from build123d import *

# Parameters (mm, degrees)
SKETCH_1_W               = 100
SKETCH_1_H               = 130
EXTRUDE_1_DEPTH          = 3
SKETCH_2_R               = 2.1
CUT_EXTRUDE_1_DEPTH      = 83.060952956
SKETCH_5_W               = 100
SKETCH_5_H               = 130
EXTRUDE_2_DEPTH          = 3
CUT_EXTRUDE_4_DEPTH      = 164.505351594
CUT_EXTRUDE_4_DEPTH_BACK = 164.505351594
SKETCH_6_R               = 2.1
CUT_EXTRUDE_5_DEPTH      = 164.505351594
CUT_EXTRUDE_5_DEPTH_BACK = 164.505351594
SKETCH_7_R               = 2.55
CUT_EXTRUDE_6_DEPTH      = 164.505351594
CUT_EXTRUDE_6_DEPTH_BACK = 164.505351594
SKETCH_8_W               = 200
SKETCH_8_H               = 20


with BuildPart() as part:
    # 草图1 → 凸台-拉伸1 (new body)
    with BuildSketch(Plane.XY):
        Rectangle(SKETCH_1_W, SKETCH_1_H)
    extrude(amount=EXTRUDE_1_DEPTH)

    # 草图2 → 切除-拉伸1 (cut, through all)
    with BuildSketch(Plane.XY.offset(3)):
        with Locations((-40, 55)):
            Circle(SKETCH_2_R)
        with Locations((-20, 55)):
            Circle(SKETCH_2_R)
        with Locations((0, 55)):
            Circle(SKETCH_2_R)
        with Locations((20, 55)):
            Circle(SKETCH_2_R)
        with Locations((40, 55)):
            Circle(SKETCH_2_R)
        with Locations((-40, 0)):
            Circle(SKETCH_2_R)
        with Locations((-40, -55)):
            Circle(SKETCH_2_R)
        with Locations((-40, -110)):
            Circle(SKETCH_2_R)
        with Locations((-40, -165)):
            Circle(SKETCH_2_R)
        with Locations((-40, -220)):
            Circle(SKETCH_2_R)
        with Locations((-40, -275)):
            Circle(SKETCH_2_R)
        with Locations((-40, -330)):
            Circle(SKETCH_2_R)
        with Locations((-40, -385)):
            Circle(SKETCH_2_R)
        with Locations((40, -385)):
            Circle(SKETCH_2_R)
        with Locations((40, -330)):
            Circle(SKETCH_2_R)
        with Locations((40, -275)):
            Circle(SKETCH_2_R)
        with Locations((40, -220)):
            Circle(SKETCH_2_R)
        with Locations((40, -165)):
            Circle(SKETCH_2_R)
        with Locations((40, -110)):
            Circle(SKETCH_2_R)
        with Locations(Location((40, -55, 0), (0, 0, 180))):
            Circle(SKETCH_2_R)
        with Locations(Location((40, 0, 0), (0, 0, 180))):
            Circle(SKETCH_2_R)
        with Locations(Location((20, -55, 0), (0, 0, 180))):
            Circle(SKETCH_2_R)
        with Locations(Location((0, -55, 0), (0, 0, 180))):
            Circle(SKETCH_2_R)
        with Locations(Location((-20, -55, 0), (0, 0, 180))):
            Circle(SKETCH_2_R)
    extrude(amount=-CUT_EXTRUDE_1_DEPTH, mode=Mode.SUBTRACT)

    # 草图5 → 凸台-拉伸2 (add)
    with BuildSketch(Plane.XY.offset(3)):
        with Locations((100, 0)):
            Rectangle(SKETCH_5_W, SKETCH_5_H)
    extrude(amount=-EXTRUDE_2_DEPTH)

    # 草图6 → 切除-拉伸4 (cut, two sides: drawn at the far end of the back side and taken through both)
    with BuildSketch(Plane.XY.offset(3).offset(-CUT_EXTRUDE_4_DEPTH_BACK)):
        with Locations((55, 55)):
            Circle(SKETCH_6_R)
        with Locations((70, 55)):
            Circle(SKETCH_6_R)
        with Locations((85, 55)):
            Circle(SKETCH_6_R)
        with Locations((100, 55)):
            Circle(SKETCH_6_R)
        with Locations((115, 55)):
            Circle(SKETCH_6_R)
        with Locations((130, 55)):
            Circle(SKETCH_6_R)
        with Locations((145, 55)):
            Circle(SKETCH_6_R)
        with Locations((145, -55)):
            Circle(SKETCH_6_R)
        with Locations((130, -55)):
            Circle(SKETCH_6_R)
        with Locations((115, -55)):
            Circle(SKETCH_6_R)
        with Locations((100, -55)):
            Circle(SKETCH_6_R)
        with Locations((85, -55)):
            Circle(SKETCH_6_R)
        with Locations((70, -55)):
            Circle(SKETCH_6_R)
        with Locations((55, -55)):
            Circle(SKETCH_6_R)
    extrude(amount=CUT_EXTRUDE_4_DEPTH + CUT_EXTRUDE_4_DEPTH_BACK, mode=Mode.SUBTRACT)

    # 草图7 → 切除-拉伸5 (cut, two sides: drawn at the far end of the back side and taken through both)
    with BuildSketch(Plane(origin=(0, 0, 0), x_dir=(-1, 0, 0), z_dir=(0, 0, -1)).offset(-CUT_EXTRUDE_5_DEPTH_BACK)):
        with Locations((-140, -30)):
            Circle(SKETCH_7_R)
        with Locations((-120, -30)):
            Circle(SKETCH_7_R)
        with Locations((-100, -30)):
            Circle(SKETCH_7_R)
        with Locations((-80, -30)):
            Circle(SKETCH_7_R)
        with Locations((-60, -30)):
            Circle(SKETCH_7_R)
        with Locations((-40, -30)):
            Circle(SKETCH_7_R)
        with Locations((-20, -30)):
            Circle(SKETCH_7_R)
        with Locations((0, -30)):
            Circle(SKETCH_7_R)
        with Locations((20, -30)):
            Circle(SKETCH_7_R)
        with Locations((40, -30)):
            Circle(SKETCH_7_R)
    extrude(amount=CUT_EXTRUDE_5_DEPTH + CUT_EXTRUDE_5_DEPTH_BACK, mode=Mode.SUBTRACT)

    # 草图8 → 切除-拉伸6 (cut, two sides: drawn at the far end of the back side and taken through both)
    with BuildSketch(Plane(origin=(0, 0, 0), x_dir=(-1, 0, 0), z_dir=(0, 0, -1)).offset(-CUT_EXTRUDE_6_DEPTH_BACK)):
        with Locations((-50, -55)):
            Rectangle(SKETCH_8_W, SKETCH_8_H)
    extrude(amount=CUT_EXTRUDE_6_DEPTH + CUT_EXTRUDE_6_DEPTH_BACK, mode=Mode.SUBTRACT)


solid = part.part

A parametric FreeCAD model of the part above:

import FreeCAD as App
import Part
import Sketcher
from FreeCAD import Vector

doc = App.newDocument("Part")
body = doc.addObject("PartDesign::Body", "Body")

sketch1 = body.newObject("Sketcher::SketchObject", "Sketch")
sketch1.AttachmentSupport = (doc.getObject("XY_Plane"), [""])
sketch1.MapMode = "FlatFace"
sketch1.addGeometry(Part.LineSegment(Vector(-50, 65, 0), Vector(-50, -65, 0)), False)
sketch1.addGeometry(Part.LineSegment(Vector(-50, -65, 0), Vector(50, -65, 0)), False)
sketch1.addGeometry(Part.LineSegment(Vector(50, -65, 0), Vector(50, 65, 0)), False)
sketch1.addGeometry(Part.LineSegment(Vector(50, 65, 0), Vector(-50, 65, 0)), False)
sketch1.addConstraint(Sketcher.Constraint("Coincident", 0, 2, 1, 1))
sketch1.addConstraint(Sketcher.Constraint("Coincident", 1, 2, 2, 1))
sketch1.addConstraint(Sketcher.Constraint("Coincident", 2, 2, 3, 1))
sketch1.addConstraint(Sketcher.Constraint("Coincident", 3, 2, 0, 1))
sketch1.addConstraint(Sketcher.Constraint("Vertical", 0))
sketch1.addConstraint(Sketcher.Constraint("Horizontal", 1))
sketch1.addConstraint(Sketcher.Constraint("Vertical", 2))
sketch1.addConstraint(Sketcher.Constraint("Horizontal", 3))
sketch1.addConstraint(Sketcher.Constraint("Symmetric", 0, 2, 2, 2, -1, 1))
sketch1.addConstraint(Sketcher.Constraint("DistanceX", 1, 1, 1, 2, 100.0))
sketch1.addConstraint(Sketcher.Constraint("DistanceY", 0, 2, 0, 1, 130.0))
pad1 = body.newObject("PartDesign::Pad", "Pad")
pad1.Profile = sketch1
pad1.Length = 3

sketch2 = body.newObject("Sketcher::SketchObject", "Sketch001")
sketch2.AttachmentSupport = (doc.getObject("XY_Plane"), [""])
sketch2.MapMode = "FlatFace"
sketch2.AttachmentOffset = App.Placement(Vector(0, 0, 3), App.Rotation())
sketch2.addGeometry(Part.Circle(Vector(-40, 55, 0), Vector(0, 0, 1), 2.1), False)
sketch2.addGeometry(Part.Circle(Vector(-20, 55, 0), Vector(0, 0, 1), 2.1), False)
sketch2.addGeometry(Part.Circle(Vector(0, 55, 0), Vector(0, 0, 1), 2.1), False)
sketch2.addGeometry(Part.Circle(Vector(20, 55, 0), Vector(0, 0, 1), 2.1), False)
sketch2.addGeometry(Part.Circle(Vector(40, 55, 0), Vector(0, 0, 1), 2.1), False)
sketch2.addGeometry(Part.Circle(Vector(-40, 0, 0), Vector(0, 0, 1), 2.1), False)
sketch2.addGeometry(Part.Circle(Vector(-40, -55, 0), Vector(0, 0, 1), 2.1), False)
sketch2.addGeometry(Part.Circle(Vector(-40, -110, 0), Vector(0, 0, 1), 2.1), False)
sketch2.addGeometry(Part.Circle(Vector(-40, -165, 0), Vector(0, 0, 1), 2.1), False)
sketch2.addGeometry(Part.Circle(Vector(-40, -220, 0), Vector(0, 0, 1), 2.1), False)
sketch2.addGeometry(Part.Circle(Vector(-40, -275, 0), Vector(0, 0, 1), 2.1), False)
sketch2.addGeometry(Part.Circle(Vector(-40, -330, 0), Vector(0, 0, 1), 2.1), False)
sketch2.addGeometry(Part.Circle(Vector(-40, -385, 0), Vector(0, 0, 1), 2.1), False)
sketch2.addGeometry(Part.Circle(Vector(40, -385, 0), Vector(0, 0, 1), 2.1), False)
sketch2.addGeometry(Part.Circle(Vector(40, -330, 0), Vector(0, 0, 1), 2.1), False)
sketch2.addGeometry(Part.Circle(Vector(40, -275, 0), Vector(0, 0, 1), 2.1), False)
sketch2.addGeometry(Part.Circle(Vector(40, -220, 0), Vector(0, 0, 1), 2.1), False)
sketch2.addGeometry(Part.Circle(Vector(40, -165, 0), Vector(0, 0, 1), 2.1), False)
sketch2.addGeometry(Part.Circle(Vector(40, -110, 0), Vector(0, 0, 1), 2.1), False)
sketch2.addGeometry(Part.Circle(Vector(40, -55, 0), Vector(0, 0, 1), 2.1), False)
sketch2.addGeometry(Part.Circle(Vector(40, 0, 0), Vector(0, 0, 1), 2.1), False)
sketch2.addGeometry(Part.Circle(Vector(20, -55, 0), Vector(0, 0, 1), 2.1), False)
sketch2.addGeometry(Part.Circle(Vector(0, -55, 0), Vector(0, 0, 1), 2.1), False)
sketch2.addGeometry(Part.Circle(Vector(-20, -55, 0), Vector(0, 0, 1), 2.1), False)
sketch2.addConstraint(Sketcher.Constraint("Equal", 0, 1))
sketch2.addConstraint(Sketcher.Constraint("Equal", 1, 2))
sketch2.addConstraint(Sketcher.Constraint("Equal", 2, 3))
sketch2.addConstraint(Sketcher.Constraint("Equal", 3, 4))
sketch2.addConstraint(Sketcher.Constraint("Equal", 4, 5))
sketch2.addConstraint(Sketcher.Constraint("Equal", 5, 6))
sketch2.addConstraint(Sketcher.Constraint("Equal", 6, 7))
sketch2.addConstraint(Sketcher.Constraint("Equal", 7, 8))
sketch2.addConstraint(Sketcher.Constraint("Equal", 8, 9))
sketch2.addConstraint(Sketcher.Constraint("Equal", 9, 10))
sketch2.addConstraint(Sketcher.Constraint("Equal", 10, 11))
sketch2.addConstraint(Sketcher.Constraint("Equal", 11, 12))
sketch2.addConstraint(Sketcher.Constraint("Equal", 12, 13))
sketch2.addConstraint(Sketcher.Constraint("Equal", 13, 14))
sketch2.addConstraint(Sketcher.Constraint("Equal", 14, 15))
sketch2.addConstraint(Sketcher.Constraint("Equal", 15, 16))
sketch2.addConstraint(Sketcher.Constraint("Equal", 16, 17))
sketch2.addConstraint(Sketcher.Constraint("Equal", 17, 18))
sketch2.addConstraint(Sketcher.Constraint("Equal", 18, 19))
sketch2.addConstraint(Sketcher.Constraint("Equal", 19, 20))
sketch2.addConstraint(Sketcher.Constraint("Equal", 20, 21))
sketch2.addConstraint(Sketcher.Constraint("Equal", 21, 22))
sketch2.addConstraint(Sketcher.Constraint("Equal", 22, 23))
sketch2.addConstraint(Sketcher.Constraint("Symmetric", 4, 3, 6, 3, -1, 1))
sketch2.addConstraint(Sketcher.Constraint("Symmetric", 0, 3, 19, 3, -1, 1))
sketch2.addConstraint(Sketcher.Constraint("Symmetric", 5, 3, 20, 3, -1, 1))
sketch2.addConstraint(Sketcher.Constraint("Symmetric", 1, 3, 21, 3, -1, 1))
sketch2.addConstraint(Sketcher.Constraint("Symmetric", 2, 3, 22, 3, -1, 1))
sketch2.addConstraint(Sketcher.Constraint("Symmetric", 3, 3, 23, 3, -1, 1))
sketch2.addConstraint(Sketcher.Constraint("Symmetric", 1, 3, 3, 3, -2))
sketch2.addConstraint(Sketcher.Constraint("Symmetric", 0, 3, 4, 3, -2))
sketch2.addConstraint(Sketcher.Constraint("Symmetric", 12, 3, 13, 3, -2))
sketch2.addConstraint(Sketcher.Constraint("Symmetric", 11, 3, 14, 3, -2))
sketch2.addConstraint(Sketcher.Constraint("Symmetric", 10, 3, 15, 3, -2))
sketch2.addConstraint(Sketcher.Constraint("Symmetric", 9, 3, 16, 3, -2))
sketch2.addConstraint(Sketcher.Constraint("Symmetric", 8, 3, 17, 3, -2))
sketch2.addConstraint(Sketcher.Constraint("Symmetric", 7, 3, 18, 3, -2))
sketch2.addConstraint(Sketcher.Constraint("PointOnObject", 2, 3, -2))
sketch2.addConstraint(Sketcher.Constraint("PointOnObject", 5, 3, -1))
sketch2.addConstraint(Sketcher.Constraint("Horizontal", 0, 3, 1, 3))
sketch2.addConstraint(Sketcher.Constraint("Horizontal", 1, 3, 2, 3))
sketch2.addConstraint(Sketcher.Constraint("Vertical", 0, 3, 5, 3))
sketch2.addConstraint(Sketcher.Constraint("Vertical", 6, 3, 7, 3))
sketch2.addConstraint(Sketcher.Constraint("Vertical", 7, 3, 8, 3))
sketch2.addConstraint(Sketcher.Constraint("Vertical", 8, 3, 9, 3))
sketch2.addConstraint(Sketcher.Constraint("Vertical", 9, 3, 10, 3))
sketch2.addConstraint(Sketcher.Constraint("Vertical", 10, 3, 11, 3))
sketch2.addConstraint(Sketcher.Constraint("Vertical", 11, 3, 12, 3))
sketch2.addConstraint(Sketcher.Constraint("Diameter", 0, 4.2))
sketch2.addConstraint(Sketcher.Constraint("DistanceX", 0, 3, -1, 1, 40.0))
sketch2.addConstraint(Sketcher.Constraint("DistanceY", -1, 1, 0, 3, 55.0))
sketch2.addConstraint(Sketcher.Constraint("DistanceX", 1, 3, -1, 1, 20.0))
sketch2.addConstraint(Sketcher.Constraint("DistanceY", 7, 3, -1, 1, 110.0))
sketch2.addConstraint(Sketcher.Constraint("DistanceY", 8, 3, -1, 1, 165.0))
sketch2.addConstraint(Sketcher.Constraint("DistanceY", 9, 3, -1, 1, 220.0))
sketch2.addConstraint(Sketcher.Constraint("DistanceY", 10, 3, -1, 1, 275.0))
sketch2.addConstraint(Sketcher.Constraint("DistanceY", 11, 3, -1, 1, 330.0))
sketch2.addConstraint(Sketcher.Constraint("DistanceY", 12, 3, -1, 1, 385.0))
pocket1 = body.newObject("PartDesign::Pocket", "Pocket")
pocket1.Profile = sketch2
pocket1.Type = "ThroughAll"

sketch3 = body.newObject("Sketcher::SketchObject", "Sketch002")
sketch3.AttachmentSupport = (doc.getObject("XY_Plane"), [""])
sketch3.MapMode = "FlatFace"
sketch3.AttachmentOffset = App.Placement(Vector(0, 0, 3), App.Rotation())
sketch3.addGeometry(Part.LineSegment(Vector(50, 65, 0), Vector(50, -65, 0)), False)
sketch3.addGeometry(Part.LineSegment(Vector(50, -65, 0), Vector(150, -65, 0)), False)
sketch3.addGeometry(Part.LineSegment(Vector(150, -65, 0), Vector(150, 65, 0)), False)
sketch3.addGeometry(Part.LineSegment(Vector(150, 65, 0), Vector(50, 65, 0)), False)
sketch3.addConstraint(Sketcher.Constraint("Coincident", 0, 2, 1, 1))
sketch3.addConstraint(Sketcher.Constraint("Coincident", 1, 2, 2, 1))
sketch3.addConstraint(Sketcher.Constraint("Coincident", 2, 2, 3, 1))
sketch3.addConstraint(Sketcher.Constraint("Coincident", 3, 2, 0, 1))
sketch3.addConstraint(Sketcher.Constraint("Vertical", 0))
sketch3.addConstraint(Sketcher.Constraint("Horizontal", 1))
sketch3.addConstraint(Sketcher.Constraint("Vertical", 2))
sketch3.addConstraint(Sketcher.Constraint("Horizontal", 3))
sketch3.addConstraint(Sketcher.Constraint("DistanceX", 1, 1, 1, 2, 100.0))
sketch3.addConstraint(Sketcher.Constraint("DistanceY", 0, 2, 0, 1, 130.0))
sketch3.addConstraint(Sketcher.Constraint("DistanceX", -1, 1, 0, 2, 50.0))
sketch3.addConstraint(Sketcher.Constraint("DistanceY", 0, 2, -1, 1, 65.0))
pad2 = body.newObject("PartDesign::Pad", "Pad001")
pad2.Profile = sketch3
pad2.Length = 3
pad2.Reversed = True

sketch4 = body.newObject("Sketcher::SketchObject", "Sketch003")
sketch4.AttachmentSupport = (doc.getObject("XY_Plane"), [""])
sketch4.MapMode = "FlatFace"
sketch4.AttachmentOffset = App.Placement(Vector(0, 0, 3), App.Rotation())
sketch4.addGeometry(Part.Circle(Vector(55, 55, 0), Vector(0, 0, 1), 2.1), False)
sketch4.addGeometry(Part.Circle(Vector(70, 55, 0), Vector(0, 0, 1), 2.1), False)
sketch4.addGeometry(Part.Circle(Vector(85, 55, 0), Vector(0, 0, 1), 2.1), False)
sketch4.addGeometry(Part.Circle(Vector(100, 55, 0), Vector(0, 0, 1), 2.1), False)
sketch4.addGeometry(Part.Circle(Vector(115, 55, 0), Vector(0, 0, 1), 2.1), False)
sketch4.addGeometry(Part.Circle(Vector(130, 55, 0), Vector(0, 0, 1), 2.1), False)
sketch4.addGeometry(Part.Circle(Vector(145, 55, 0), Vector(0, 0, 1), 2.1), False)
sketch4.addGeometry(Part.Circle(Vector(145, -55, 0), Vector(0, 0, 1), 2.1), False)
sketch4.addGeometry(Part.Circle(Vector(130, -55, 0), Vector(0, 0, 1), 2.1), False)
sketch4.addGeometry(Part.Circle(Vector(115, -55, 0), Vector(0, 0, 1), 2.1), False)
sketch4.addGeometry(Part.Circle(Vector(100, -55, 0), Vector(0, 0, 1), 2.1), False)
sketch4.addGeometry(Part.Circle(Vector(85, -55, 0), Vector(0, 0, 1), 2.1), False)
sketch4.addGeometry(Part.Circle(Vector(70, -55, 0), Vector(0, 0, 1), 2.1), False)
sketch4.addGeometry(Part.Circle(Vector(55, -55, 0), Vector(0, 0, 1), 2.1), False)
sketch4.addConstraint(Sketcher.Constraint("Equal", 0, 1))
sketch4.addConstraint(Sketcher.Constraint("Equal", 1, 2))
sketch4.addConstraint(Sketcher.Constraint("Equal", 2, 3))
sketch4.addConstraint(Sketcher.Constraint("Equal", 3, 4))
sketch4.addConstraint(Sketcher.Constraint("Equal", 4, 5))
sketch4.addConstraint(Sketcher.Constraint("Equal", 5, 6))
sketch4.addConstraint(Sketcher.Constraint("Equal", 6, 7))
sketch4.addConstraint(Sketcher.Constraint("Equal", 7, 8))
sketch4.addConstraint(Sketcher.Constraint("Equal", 8, 9))
sketch4.addConstraint(Sketcher.Constraint("Equal", 9, 10))
sketch4.addConstraint(Sketcher.Constraint("Equal", 10, 11))
sketch4.addConstraint(Sketcher.Constraint("Equal", 11, 12))
sketch4.addConstraint(Sketcher.Constraint("Equal", 12, 13))
sketch4.addConstraint(Sketcher.Constraint("Symmetric", 6, 3, 7, 3, -1))
sketch4.addConstraint(Sketcher.Constraint("Symmetric", 5, 3, 8, 3, -1))
sketch4.addConstraint(Sketcher.Constraint("Symmetric", 4, 3, 9, 3, -1))
sketch4.addConstraint(Sketcher.Constraint("Symmetric", 3, 3, 10, 3, -1))
sketch4.addConstraint(Sketcher.Constraint("Symmetric", 2, 3, 11, 3, -1))
sketch4.addConstraint(Sketcher.Constraint("Symmetric", 1, 3, 12, 3, -1))
sketch4.addConstraint(Sketcher.Constraint("Symmetric", 0, 3, 13, 3, -1))
sketch4.addConstraint(Sketcher.Constraint("Horizontal", 0, 3, 1, 3))
sketch4.addConstraint(Sketcher.Constraint("Horizontal", 1, 3, 2, 3))
sketch4.addConstraint(Sketcher.Constraint("Horizontal", 2, 3, 3, 3))
sketch4.addConstraint(Sketcher.Constraint("Horizontal", 3, 3, 4, 3))
sketch4.addConstraint(Sketcher.Constraint("Horizontal", 4, 3, 5, 3))
sketch4.addConstraint(Sketcher.Constraint("Horizontal", 5, 3, 6, 3))
sketch4.addConstraint(Sketcher.Constraint("Diameter", 0, 4.2))
sketch4.addConstraint(Sketcher.Constraint("DistanceX", -1, 1, 0, 3, 55.0))
sketch4.addConstraint(Sketcher.Constraint("DistanceY", -1, 1, 0, 3, 55.0))
sketch4.addConstraint(Sketcher.Constraint("DistanceX", -1, 1, 1, 3, 70.0))
sketch4.addConstraint(Sketcher.Constraint("DistanceX", -1, 1, 2, 3, 85.0))
sketch4.addConstraint(Sketcher.Constraint("DistanceX", -1, 1, 3, 3, 100.0))
sketch4.addConstraint(Sketcher.Constraint("DistanceX", -1, 1, 4, 3, 115.0))
sketch4.addConstraint(Sketcher.Constraint("DistanceX", -1, 1, 5, 3, 130.0))
sketch4.addConstraint(Sketcher.Constraint("DistanceX", -1, 1, 6, 3, 145.0))
pocket2 = body.newObject("PartDesign::Pocket", "Pocket001")
pocket2.Profile = sketch4
pocket2.Type = "ThroughAll"
pocket2.Midplane = True

sketch5 = body.newObject("Sketcher::SketchObject", "Sketch004")
sketch5.AttachmentSupport = (doc.getObject("XY_Plane"), [""])
sketch5.MapMode = "FlatFace"
sketch5.addGeometry(Part.Circle(Vector(140, -30, 0), Vector(0, 0, 1), 2.5), False)
sketch5.addGeometry(Part.Circle(Vector(120, -30, 0), Vector(0, 0, 1), 2.5), False)
sketch5.addGeometry(Part.Circle(Vector(100, -30, 0), Vector(0, 0, 1), 2.5), False)
sketch5.addGeometry(Part.Circle(Vector(80, -30, 0), Vector(0, 0, 1), 2.5), False)
sketch5.addGeometry(Part.Circle(Vector(60, -30, 0), Vector(0, 0, 1), 2.5), False)
sketch5.addGeometry(Part.Circle(Vector(40, -30, 0), Vector(0, 0, 1), 2.5), False)
sketch5.addGeometry(Part.Circle(Vector(20, -30, 0), Vector(0, 0, 1), 2.5), False)
sketch5.addGeometry(Part.Circle(Vector(0, -30, 0), Vector(0, 0, 1), 2.5), False)
sketch5.addGeometry(Part.Circle(Vector(-20, -30, 0), Vector(0, 0, 1), 2.5), False)
sketch5.addGeometry(Part.Circle(Vector(-40, -30, 0), Vector(0, 0, 1), 2.5), False)
sketch5.addConstraint(Sketcher.Constraint("Equal", 0, 1))
sketch5.addConstraint(Sketcher.Constraint("Equal", 1, 2))
sketch5.addConstraint(Sketcher.Constraint("Equal", 2, 3))
sketch5.addConstraint(Sketcher.Constraint("Equal", 3, 4))
sketch5.addConstraint(Sketcher.Constraint("Equal", 4, 5))
sketch5.addConstraint(Sketcher.Constraint("Equal", 5, 6))
sketch5.addConstraint(Sketcher.Constraint("Equal", 6, 7))
sketch5.addConstraint(Sketcher.Constraint("Equal", 7, 8))
sketch5.addConstraint(Sketcher.Constraint("Equal", 8, 9))
sketch5.addConstraint(Sketcher.Constraint("Symmetric", 6, 3, 8, 3, -2))
sketch5.addConstraint(Sketcher.Constraint("Symmetric", 5, 3, 9, 3, -2))
sketch5.addConstraint(Sketcher.Constraint("PointOnObject", 7, 3, -2))
sketch5.addConstraint(Sketcher.Constraint("Horizontal", 0, 3, 1, 3))
sketch5.addConstraint(Sketcher.Constraint("Horizontal", 1, 3, 2, 3))
sketch5.addConstraint(Sketcher.Constraint("Horizontal", 2, 3, 3, 3))
sketch5.addConstraint(Sketcher.Constraint("Horizontal", 3, 3, 4, 3))
sketch5.addConstraint(Sketcher.Constraint("Horizontal", 4, 3, 5, 3))
sketch5.addConstraint(Sketcher.Constraint("Horizontal", 5, 3, 6, 3))
sketch5.addConstraint(Sketcher.Constraint("Horizontal", 6, 3, 7, 3))
sketch5.addConstraint(Sketcher.Constraint("Diameter", 0, 5.1))
sketch5.addConstraint(Sketcher.Constraint("DistanceX", -1, 1, 0, 3, 140.0))
sketch5.addConstraint(Sketcher.Constraint("DistanceY", 0, 3, -1, 1, 30.0))
sketch5.addConstraint(Sketcher.Constraint("DistanceX", -1, 1, 1, 3, 120.0))
sketch5.addConstraint(Sketcher.Constraint("DistanceX", -1, 1, 2, 3, 100.0))
sketch5.addConstraint(Sketcher.Constraint("DistanceX", -1, 1, 3, 3, 80.0))
sketch5.addConstraint(Sketcher.Constraint("DistanceX", -1, 1, 4, 3, 60.0))
sketch5.addConstraint(Sketcher.Constraint("DistanceX", -1, 1, 5, 3, 40.0))
sketch5.addConstraint(Sketcher.Constraint("DistanceX", -1, 1, 6, 3, 20.0))
pocket3 = body.newObject("PartDesign::Pocket", "Pocket002")
pocket3.Profile = sketch5
pocket3.Type = "ThroughAll"
pocket3.Midplane = True

sketch6 = body.newObject("Sketcher::SketchObject", "Sketch005")
sketch6.AttachmentSupport = (doc.getObject("XY_Plane"), [""])
sketch6.MapMode = "FlatFace"
sketch6.addGeometry(Part.LineSegment(Vector(150, -45, 0), Vector(150, -65, 0)), False)
sketch6.addGeometry(Part.LineSegment(Vector(150, -65, 0), Vector(-50, -65, 0)), False)
sketch6.addGeometry(Part.LineSegment(Vector(-50, -65, 0), Vector(-50, -45, 0)), False)
sketch6.addGeometry(Part.LineSegment(Vector(-50, -45, 0), Vector(150, -45, 0)), False)
sketch6.addConstraint(Sketcher.Constraint("Coincident", 0, 2, 1, 1))
sketch6.addConstraint(Sketcher.Constraint("Coincident", 1, 2, 2, 1))
sketch6.addConstraint(Sketcher.Constraint("Coincident", 2, 2, 3, 1))
sketch6.addConstraint(Sketcher.Constraint("Coincident", 3, 2, 0, 1))
sketch6.addConstraint(Sketcher.Constraint("Vertical", 0))
sketch6.addConstraint(Sketcher.Constraint("Horizontal", 1))
sketch6.addConstraint(Sketcher.Constraint("Vertical", 2))
sketch6.addConstraint(Sketcher.Constraint("Horizontal", 3))
sketch6.addConstraint(Sketcher.Constraint("DistanceX", 1, 2, 1, 1, 200.0))
sketch6.addConstraint(Sketcher.Constraint("DistanceY", 0, 2, 0, 1, 20.0))
sketch6.addConstraint(Sketcher.Constraint("DistanceX", -1, 1, 0, 2, 150.0))
sketch6.addConstraint(Sketcher.Constraint("DistanceY", 0, 2, -1, 1, 65.0))
pocket4 = body.newObject("PartDesign::Pocket", "Pocket003")
pocket4.Profile = sketch6
pocket4.Type = "ThroughAll"
pocket4.Midplane = True

doc.recompute()
